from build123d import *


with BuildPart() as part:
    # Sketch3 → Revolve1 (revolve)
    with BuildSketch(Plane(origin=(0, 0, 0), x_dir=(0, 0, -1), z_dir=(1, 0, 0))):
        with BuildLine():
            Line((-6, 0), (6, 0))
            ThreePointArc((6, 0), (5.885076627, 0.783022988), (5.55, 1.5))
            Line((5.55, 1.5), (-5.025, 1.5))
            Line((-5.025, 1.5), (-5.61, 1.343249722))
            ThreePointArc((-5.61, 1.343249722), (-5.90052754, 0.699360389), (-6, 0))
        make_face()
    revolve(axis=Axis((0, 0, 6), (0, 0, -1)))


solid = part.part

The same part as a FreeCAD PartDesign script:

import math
import FreeCAD as App
import Part
import Sketcher
from FreeCAD import Vector
Q = App.Units.Quantity

doc = App.newDocument("Part")
body = doc.addObject("PartDesign::Body", "Body")

sketch1 = body.newObject("Sketcher::SketchObject", "Sketch")
sketch1.AttachmentSupport = (doc.getObject("YZ_Plane"), [""])
sketch1.MapMode = "FlatFace"
sketch1.addGeometry([
    Part.LineSegment(Vector(0, 6, 0), Vector(0, -6, 0)),
    Part.ArcOfCircle(Part.Circle(Vector(0, -3.3, 0), Vector(0, 0, 1), 2.7), math.radians(-90), math.radians(-57)),
    Part.LineSegment(Vector(1.5, -5.5, 0), Vector(1.5, 5, 0)),
    Part.LineSegment(Vector(1.5, 5, 0), Vector(1.3, 5.6, 0)),
    Part.ArcOfCircle(Part.Circle(Vector(0, 3.5, 0), Vector(0, 0, 1), 2.5), math.radians(58), math.radians(90)),
], False)
sketch1.addConstraint([
    Sketcher.Constraint("Coincident", 0, 2, 1, 1),
    Sketcher.Constraint("Coincident", 1, 2, 2, 1),
    Sketcher.Constraint("Coincident", 2, 2, 3, 1),
    Sketcher.Constraint("Coincident", 3, 2, 4, 1),
    Sketcher.Constraint("Coincident", 4, 2, 0, 1),
    Sketcher.Constraint("Vertical", 0),
    Sketcher.Constraint("Vertical", 2),
    Sketcher.Constraint("Symmetric", 0, 2, 4, 2, -1, 1),
    Sketcher.Constraint("PointOnObject", 1, 3, -2),
    Sketcher.Constraint("PointOnObject", 4, 3, -2),
    Sketcher.Constraint("DistanceY", 0, 2, 0, 1, 12.0),
    Sketcher.Constraint("Angle", 3, Q("105 deg")),
    Sketcher.Constraint("Radius", 1, 2.725),
    Sketcher.Constraint("DistanceX", -1, 1, 1, 2, 1.5),
    Sketcher.Constraint("DistanceY", 1, 3, 2, 2, 8.3),
    Sketcher.Constraint("DistanceY", -1, 1, 3, 2, 5.61),
])
revolution = body.newObject("PartDesign::Revolution", "Revolution")
revolution.Profile = sketch1
revolution.ReferenceAxis = (sketch1, ["V_Axis"])
revolution.Angle = 360

doc.recompute()
